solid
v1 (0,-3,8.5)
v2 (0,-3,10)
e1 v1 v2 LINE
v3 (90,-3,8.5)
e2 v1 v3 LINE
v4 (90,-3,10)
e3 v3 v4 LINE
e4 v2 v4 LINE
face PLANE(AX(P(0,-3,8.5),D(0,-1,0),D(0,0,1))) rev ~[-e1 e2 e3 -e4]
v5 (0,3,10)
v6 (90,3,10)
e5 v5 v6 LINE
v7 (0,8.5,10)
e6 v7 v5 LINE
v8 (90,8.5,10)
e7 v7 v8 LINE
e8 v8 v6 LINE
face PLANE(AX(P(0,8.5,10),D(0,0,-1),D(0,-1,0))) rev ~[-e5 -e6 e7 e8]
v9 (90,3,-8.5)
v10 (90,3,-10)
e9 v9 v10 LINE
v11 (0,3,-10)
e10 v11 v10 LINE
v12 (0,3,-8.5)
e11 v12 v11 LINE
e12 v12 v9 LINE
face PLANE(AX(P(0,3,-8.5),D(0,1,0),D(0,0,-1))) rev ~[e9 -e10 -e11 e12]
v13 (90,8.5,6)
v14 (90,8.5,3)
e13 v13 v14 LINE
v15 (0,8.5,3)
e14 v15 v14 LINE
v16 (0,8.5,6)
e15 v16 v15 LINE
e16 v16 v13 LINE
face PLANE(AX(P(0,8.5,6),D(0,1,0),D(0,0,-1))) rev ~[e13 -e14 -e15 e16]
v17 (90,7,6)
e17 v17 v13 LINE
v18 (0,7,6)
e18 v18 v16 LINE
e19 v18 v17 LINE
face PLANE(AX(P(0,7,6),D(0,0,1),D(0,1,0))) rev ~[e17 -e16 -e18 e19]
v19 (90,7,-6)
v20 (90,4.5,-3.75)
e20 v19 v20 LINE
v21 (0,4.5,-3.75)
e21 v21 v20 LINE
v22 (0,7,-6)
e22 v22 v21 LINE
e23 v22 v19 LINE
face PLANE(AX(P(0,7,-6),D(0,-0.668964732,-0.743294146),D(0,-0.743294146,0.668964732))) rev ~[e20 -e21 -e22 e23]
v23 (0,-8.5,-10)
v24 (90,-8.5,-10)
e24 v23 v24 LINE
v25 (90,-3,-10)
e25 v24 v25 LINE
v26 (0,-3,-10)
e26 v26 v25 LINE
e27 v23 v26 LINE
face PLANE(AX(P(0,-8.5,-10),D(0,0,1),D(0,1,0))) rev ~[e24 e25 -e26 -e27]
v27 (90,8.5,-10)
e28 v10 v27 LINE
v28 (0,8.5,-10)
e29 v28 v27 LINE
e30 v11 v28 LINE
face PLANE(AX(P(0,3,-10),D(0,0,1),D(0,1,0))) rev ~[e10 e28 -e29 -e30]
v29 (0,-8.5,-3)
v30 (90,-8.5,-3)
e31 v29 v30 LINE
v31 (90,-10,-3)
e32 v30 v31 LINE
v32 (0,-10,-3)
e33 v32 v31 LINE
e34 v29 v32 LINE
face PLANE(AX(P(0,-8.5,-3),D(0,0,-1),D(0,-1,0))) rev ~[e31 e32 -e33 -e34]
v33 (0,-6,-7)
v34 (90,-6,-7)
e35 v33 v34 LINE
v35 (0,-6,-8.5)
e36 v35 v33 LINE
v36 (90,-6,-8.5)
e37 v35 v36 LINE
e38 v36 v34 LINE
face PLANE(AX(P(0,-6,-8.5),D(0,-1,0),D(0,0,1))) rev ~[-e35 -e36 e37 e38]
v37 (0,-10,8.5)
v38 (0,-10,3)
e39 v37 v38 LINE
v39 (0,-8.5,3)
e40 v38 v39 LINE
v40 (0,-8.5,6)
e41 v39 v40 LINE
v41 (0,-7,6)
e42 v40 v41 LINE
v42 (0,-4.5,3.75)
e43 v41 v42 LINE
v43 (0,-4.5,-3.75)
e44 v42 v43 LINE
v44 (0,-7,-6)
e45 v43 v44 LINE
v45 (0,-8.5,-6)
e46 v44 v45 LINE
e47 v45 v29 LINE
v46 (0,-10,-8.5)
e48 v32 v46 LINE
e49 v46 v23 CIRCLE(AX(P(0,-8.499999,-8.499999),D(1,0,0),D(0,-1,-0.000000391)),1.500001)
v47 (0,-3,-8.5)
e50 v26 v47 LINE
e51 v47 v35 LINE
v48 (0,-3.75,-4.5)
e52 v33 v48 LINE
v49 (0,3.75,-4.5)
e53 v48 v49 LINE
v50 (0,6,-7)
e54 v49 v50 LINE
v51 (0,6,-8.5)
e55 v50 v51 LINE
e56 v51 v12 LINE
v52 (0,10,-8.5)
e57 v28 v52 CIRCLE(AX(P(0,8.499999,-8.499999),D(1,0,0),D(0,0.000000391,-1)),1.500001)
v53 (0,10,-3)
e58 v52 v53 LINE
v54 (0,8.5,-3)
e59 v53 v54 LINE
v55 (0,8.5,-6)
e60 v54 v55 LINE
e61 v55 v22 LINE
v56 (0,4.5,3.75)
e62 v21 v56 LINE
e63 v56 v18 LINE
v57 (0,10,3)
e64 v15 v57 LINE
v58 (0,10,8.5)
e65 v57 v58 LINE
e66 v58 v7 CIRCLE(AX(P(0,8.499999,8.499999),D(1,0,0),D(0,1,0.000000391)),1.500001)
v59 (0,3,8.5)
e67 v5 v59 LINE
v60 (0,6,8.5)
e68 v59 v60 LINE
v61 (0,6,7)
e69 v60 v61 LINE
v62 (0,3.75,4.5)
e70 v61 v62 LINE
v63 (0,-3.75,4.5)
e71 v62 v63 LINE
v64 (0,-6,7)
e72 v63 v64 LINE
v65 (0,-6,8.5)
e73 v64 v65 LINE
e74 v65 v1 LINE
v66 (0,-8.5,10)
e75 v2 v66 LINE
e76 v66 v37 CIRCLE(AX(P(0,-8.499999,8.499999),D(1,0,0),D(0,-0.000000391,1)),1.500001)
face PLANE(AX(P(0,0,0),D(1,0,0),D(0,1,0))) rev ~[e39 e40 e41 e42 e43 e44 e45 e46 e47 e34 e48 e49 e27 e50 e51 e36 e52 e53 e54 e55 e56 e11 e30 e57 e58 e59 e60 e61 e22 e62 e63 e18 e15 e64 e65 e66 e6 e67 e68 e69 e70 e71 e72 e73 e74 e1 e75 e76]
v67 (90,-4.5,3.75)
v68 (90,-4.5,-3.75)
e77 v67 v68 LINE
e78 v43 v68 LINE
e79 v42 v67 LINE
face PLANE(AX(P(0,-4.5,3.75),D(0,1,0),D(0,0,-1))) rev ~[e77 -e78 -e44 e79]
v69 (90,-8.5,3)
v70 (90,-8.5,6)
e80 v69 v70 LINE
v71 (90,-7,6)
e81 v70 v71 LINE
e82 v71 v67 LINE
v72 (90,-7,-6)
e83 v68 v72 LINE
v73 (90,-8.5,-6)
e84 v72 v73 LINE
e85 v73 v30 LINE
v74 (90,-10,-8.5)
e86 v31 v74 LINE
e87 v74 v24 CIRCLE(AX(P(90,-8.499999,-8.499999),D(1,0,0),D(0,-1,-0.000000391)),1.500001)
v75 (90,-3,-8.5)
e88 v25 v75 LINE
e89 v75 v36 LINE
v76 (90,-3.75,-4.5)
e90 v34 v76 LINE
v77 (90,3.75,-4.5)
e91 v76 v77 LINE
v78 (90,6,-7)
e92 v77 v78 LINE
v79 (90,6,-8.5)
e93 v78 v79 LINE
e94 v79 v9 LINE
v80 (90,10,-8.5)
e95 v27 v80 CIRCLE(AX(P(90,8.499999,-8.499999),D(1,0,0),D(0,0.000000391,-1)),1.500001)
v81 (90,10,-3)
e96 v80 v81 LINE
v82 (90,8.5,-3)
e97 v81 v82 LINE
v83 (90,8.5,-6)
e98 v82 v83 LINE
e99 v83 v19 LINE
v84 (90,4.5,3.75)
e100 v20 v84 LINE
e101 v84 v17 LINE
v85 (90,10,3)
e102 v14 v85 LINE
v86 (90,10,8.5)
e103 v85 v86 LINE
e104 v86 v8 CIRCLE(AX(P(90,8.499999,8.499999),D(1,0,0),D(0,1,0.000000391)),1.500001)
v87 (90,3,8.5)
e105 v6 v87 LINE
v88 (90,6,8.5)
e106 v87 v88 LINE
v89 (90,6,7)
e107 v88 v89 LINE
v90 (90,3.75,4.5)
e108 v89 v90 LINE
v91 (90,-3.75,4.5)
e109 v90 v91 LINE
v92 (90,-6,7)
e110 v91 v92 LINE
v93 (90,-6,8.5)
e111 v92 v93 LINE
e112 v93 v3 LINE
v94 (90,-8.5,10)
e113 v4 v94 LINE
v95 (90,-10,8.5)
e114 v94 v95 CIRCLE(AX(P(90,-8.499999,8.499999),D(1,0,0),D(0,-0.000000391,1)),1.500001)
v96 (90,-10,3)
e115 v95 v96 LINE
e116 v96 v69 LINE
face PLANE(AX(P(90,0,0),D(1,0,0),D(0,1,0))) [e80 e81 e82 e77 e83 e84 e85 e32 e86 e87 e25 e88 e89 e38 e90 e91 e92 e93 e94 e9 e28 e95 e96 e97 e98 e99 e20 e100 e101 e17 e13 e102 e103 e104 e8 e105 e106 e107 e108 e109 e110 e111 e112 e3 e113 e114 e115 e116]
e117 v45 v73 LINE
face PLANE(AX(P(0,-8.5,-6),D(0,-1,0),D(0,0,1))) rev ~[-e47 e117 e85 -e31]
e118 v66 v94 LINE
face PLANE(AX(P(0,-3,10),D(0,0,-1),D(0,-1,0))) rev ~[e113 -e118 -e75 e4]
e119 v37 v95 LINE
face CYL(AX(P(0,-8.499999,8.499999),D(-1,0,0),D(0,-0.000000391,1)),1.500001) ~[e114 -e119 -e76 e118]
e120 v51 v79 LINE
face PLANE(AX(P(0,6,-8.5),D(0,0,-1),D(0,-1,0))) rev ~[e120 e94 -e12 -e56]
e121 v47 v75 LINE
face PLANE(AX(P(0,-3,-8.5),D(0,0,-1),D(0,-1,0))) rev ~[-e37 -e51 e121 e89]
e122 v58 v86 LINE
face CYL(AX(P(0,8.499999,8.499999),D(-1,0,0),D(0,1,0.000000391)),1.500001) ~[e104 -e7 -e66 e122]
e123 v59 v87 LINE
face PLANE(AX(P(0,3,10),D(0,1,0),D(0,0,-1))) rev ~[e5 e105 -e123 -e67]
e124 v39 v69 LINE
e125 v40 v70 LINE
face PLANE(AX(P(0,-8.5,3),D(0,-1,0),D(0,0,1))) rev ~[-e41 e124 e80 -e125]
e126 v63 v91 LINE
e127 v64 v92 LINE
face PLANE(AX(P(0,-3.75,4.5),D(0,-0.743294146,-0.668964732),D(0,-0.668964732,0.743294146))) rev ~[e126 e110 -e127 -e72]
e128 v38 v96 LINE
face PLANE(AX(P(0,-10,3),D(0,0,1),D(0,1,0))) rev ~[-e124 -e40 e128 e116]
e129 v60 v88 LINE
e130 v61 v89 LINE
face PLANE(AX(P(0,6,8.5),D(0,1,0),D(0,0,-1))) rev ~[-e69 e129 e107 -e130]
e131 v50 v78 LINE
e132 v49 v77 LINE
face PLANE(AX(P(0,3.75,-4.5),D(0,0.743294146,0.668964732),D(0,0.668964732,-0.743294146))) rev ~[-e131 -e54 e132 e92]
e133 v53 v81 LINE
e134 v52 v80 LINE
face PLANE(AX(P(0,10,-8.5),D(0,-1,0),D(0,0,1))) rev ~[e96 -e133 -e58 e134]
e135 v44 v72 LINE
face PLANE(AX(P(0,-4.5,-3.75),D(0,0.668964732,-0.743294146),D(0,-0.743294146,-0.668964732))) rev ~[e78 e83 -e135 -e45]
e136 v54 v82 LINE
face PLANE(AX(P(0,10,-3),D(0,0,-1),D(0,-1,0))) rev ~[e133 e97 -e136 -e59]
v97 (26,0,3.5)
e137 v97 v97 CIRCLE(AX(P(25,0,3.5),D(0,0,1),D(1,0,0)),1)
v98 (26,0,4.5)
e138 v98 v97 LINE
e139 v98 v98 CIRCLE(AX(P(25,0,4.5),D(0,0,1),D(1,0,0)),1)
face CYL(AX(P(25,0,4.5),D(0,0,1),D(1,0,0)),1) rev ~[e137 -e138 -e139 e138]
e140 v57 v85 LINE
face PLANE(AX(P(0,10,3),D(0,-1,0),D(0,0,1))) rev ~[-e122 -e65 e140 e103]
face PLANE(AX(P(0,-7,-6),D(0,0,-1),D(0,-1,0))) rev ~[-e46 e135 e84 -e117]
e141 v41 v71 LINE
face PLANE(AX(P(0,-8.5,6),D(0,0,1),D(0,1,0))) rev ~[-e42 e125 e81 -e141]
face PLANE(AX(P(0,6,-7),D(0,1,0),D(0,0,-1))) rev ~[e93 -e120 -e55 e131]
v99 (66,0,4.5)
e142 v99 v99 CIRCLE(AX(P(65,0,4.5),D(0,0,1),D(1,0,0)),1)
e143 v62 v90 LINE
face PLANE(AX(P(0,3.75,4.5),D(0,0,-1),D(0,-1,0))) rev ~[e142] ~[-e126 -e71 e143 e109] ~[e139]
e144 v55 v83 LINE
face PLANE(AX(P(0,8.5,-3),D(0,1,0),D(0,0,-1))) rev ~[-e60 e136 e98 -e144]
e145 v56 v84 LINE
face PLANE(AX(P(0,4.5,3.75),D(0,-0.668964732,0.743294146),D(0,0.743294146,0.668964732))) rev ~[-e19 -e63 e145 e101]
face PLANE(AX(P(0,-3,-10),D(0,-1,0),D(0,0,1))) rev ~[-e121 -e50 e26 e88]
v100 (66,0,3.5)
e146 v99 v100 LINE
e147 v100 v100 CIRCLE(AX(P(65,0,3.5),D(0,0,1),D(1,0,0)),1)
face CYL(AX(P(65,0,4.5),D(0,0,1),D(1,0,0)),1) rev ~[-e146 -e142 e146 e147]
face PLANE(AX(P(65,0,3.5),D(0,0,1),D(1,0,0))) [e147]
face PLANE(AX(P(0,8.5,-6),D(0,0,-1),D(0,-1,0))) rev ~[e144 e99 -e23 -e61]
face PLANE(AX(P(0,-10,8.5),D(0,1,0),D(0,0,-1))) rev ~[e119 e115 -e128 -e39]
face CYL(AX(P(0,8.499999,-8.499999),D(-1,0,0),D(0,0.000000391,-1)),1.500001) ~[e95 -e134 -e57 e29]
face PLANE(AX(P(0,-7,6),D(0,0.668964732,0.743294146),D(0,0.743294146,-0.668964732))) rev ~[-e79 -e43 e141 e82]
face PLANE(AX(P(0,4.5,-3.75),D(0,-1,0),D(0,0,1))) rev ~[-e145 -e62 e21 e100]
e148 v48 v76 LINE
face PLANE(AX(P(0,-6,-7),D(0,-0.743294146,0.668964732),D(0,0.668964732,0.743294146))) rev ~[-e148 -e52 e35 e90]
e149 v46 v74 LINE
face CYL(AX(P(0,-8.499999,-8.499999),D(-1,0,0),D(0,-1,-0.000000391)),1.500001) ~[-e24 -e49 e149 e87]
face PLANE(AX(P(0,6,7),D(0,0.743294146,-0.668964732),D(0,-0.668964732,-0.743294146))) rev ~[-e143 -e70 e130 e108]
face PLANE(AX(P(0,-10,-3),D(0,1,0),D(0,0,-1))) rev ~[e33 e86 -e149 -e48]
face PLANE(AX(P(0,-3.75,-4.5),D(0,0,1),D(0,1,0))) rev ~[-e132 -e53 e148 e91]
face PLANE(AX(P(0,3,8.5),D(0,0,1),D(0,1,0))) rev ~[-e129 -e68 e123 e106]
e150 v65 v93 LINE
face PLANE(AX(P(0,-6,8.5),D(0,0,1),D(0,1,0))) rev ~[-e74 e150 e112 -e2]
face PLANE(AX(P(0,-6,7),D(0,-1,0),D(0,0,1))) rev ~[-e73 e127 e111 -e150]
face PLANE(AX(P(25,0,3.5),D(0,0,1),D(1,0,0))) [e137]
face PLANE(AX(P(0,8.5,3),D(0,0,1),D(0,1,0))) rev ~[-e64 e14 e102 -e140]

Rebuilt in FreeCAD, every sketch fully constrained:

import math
import FreeCAD as App
import Part
import Sketcher
Q = App.Units.Quantity

doc = App.newDocument("Part")
params = doc.addObject("Spreadsheet::Sheet", "Params")
for row, (alias, value) in enumerate([
    ("sketch1_radius", "1.500001 mm"),
    ("sketch1_width", "3 mm"),
    ("sketch1_width2", "5.5 mm"),
    ("sketch1_width3", "7.5 mm"),
    ("pad1_length", "90 mm"),
    ("sketch2_diameter", "2 mm"),
    ("pocket1_length", "1 mm"),
], start=1):
    params.set(f"A{row}", alias)
    params.set(f"B{row}", "=" + value)
    params.setAlias(f"B{row}", alias)

body = doc.addObject("PartDesign::Body", "Body")

# Sketch on YZ plane
sketch1 = doc.addObject("Sketcher::SketchObject", "Sketch")
body.addObject(sketch1)
sketch1.AttachmentSupport = (doc.YZ_Plane, [""])
sketch1.MapMode = "FlatFace"
sketch1.addGeometry([
    Part.ArcOfCircle(Part.Circle(App.Vector(8.499999, 8.499999, 0), App.Vector(0, 0, 1), 1.500001), math.radians(0.000022), math.radians(89.999978)),  # 0
    Part.LineSegment(App.Vector(8.5, 10, 0), App.Vector(3, 10, 0)),  # 1
    Part.LineSegment(App.Vector(3, 10, 0), App.Vector(3, 8.5, 0)),  # 2
    Part.LineSegment(App.Vector(3, 8.5, 0), App.Vector(6, 8.5, 0)),  # 3
    Part.LineSegment(App.Vector(6, 8.5, 0), App.Vector(6, 7, 0)),  # 4
    Part.LineSegment(App.Vector(6, 7, 0), App.Vector(3.75, 4.5, 0)),  # 5
    Part.LineSegment(App.Vector(3.75, 4.5, 0), App.Vector(-3.75, 4.5, 0)),  # 6
    Part.LineSegment(App.Vector(-3.75, 4.5, 0), App.Vector(-6, 7, 0)),  # 7
    Part.LineSegment(App.Vector(-6, 7, 0), App.Vector(-6, 8.5, 0)),  # 8
    Part.LineSegment(App.Vector(-6, 8.5, 0), App.Vector(-3, 8.5, 0)),  # 9
    Part.LineSegment(App.Vector(-3, 8.5, 0), App.Vector(-3, 10, 0)),  # 10
    Part.LineSegment(App.Vector(-3, 10, 0), App.Vector(-8.5, 10, 0)),  # 11
    Part.ArcOfCircle(Part.Circle(App.Vector(-8.499999, 8.499999, 0), App.Vector(0, 0, 1), 1.500001), math.radians(90.000022), math.radians(179.999978)),  # 12
    Part.LineSegment(App.Vector(-10, 8.5, 0), App.Vector(-10, 3, 0)),  # 13
    Part.LineSegment(App.Vector(-10, 3, 0), App.Vector(-8.5, 3, 0)),  # 14
    Part.LineSegment(App.Vector(-8.5, 3, 0), App.Vector(-8.5, 6, 0)),  # 15
    Part.LineSegment(App.Vector(-8.5, 6, 0), App.Vector(-7, 6, 0)),  # 16
    Part.LineSegment(App.Vector(-7, 6, 0), App.Vector(-4.5, 3.75, 0)),  # 17
    Part.LineSegment(App.Vector(-4.5, 3.75, 0), App.Vector(-4.5, -3.75, 0)),  # 18
    Part.LineSegment(App.Vector(-4.5, -3.75, 0), App.Vector(-7, -6, 0)),  # 19
    Part.LineSegment(App.Vector(-7, -6, 0), App.Vector(-8.5, -6, 0)),  # 20
    Part.LineSegment(App.Vector(-8.5, -6, 0), App.Vector(-8.5, -3, 0)),  # 21
    Part.LineSegment(App.Vector(-8.5, -3, 0), App.Vector(-10, -3, 0)),  # 22
    Part.LineSegment(App.Vector(-10, -3, 0), App.Vector(-10, -8.5, 0)),  # 23
    Part.ArcOfCircle(Part.Circle(App.Vector(-8.499999, -8.499999, 0), App.Vector(0, 0, 1), 1.500001), math.radians(-179.999978), math.radians(-90.000022)),  # 24
    Part.LineSegment(App.Vector(-8.5, -10, 0), App.Vector(-3, -10, 0)),  # 25
    Part.LineSegment(App.Vector(-3, -10, 0), App.Vector(-3, -8.5, 0)),  # 26
    Part.LineSegment(App.Vector(-3, -8.5, 0), App.Vector(-6, -8.5, 0)),  # 27
    Part.LineSegment(App.Vector(-6, -8.5, 0), App.Vector(-6, -7, 0)),  # 28
    Part.LineSegment(App.Vector(-6, -7, 0), App.Vector(-3.75, -4.5, 0)),  # 29
    Part.LineSegment(App.Vector(-3.75, -4.5, 0), App.Vector(3.75, -4.5, 0)),  # 30
    Part.LineSegment(App.Vector(3.75, -4.5, 0), App.Vector(6, -7, 0)),  # 31
    Part.LineSegment(App.Vector(6, -7, 0), App.Vector(6, -8.5, 0)),  # 32
    Part.LineSegment(App.Vector(6, -8.5, 0), App.Vector(3, -8.5, 0)),  # 33
    Part.LineSegment(App.Vector(3, -8.5, 0), App.Vector(3, -10, 0)),  # 34
    Part.LineSegment(App.Vector(3, -10, 0), App.Vector(8.5, -10, 0)),  # 35
    Part.ArcOfCircle(Part.Circle(App.Vector(8.499999, -8.499999, 0), App.Vector(0, 0, 1), 1.500001), math.radians(-89.999978), math.radians(-0.000022)),  # 36
    Part.LineSegment(App.Vector(10, -8.5, 0), App.Vector(10, -3, 0)),  # 37
    Part.LineSegment(App.Vector(10, -3, 0), App.Vector(8.5, -3, 0)),  # 38
    Part.LineSegment(App.Vector(8.5, -3, 0), App.Vector(8.5, -6, 0)),  # 39
    Part.LineSegment(App.Vector(8.5, -6, 0), App.Vector(7, -6, 0)),  # 40
    Part.LineSegment(App.Vector(7, -6, 0), App.Vector(4.5, -3.75, 0)),  # 41
    Part.LineSegment(App.Vector(4.5, -3.75, 0), App.Vector(4.5, 3.75, 0)),  # 42
    Part.LineSegment(App.Vector(4.5, 3.75, 0), App.Vector(7, 6, 0)),  # 43
    Part.LineSegment(App.Vector(7, 6, 0), App.Vector(8.5, 6, 0)),  # 44
    Part.LineSegment(App.Vector(8.5, 6, 0), App.Vector(8.5, 3, 0)),  # 45
    Part.LineSegment(App.Vector(8.5, 3, 0), App.Vector(10, 3, 0)),  # 46
    Part.LineSegment(App.Vector(10, 3, 0), App.Vector(10, 8.5, 0)),  # 47
], False)
sketch1.addConstraint([
    Sketcher.Constraint("Tangent", 0, 2, 1, 1),
    Sketcher.Constraint("Coincident", 1, 2, 2, 1),
    Sketcher.Constraint("Coincident", 2, 2, 3, 1),
    Sketcher.Constraint("Coincident", 3, 2, 4, 1),
    Sketcher.Constraint("Coincident", 4, 2, 5, 1),
    Sketcher.Constraint("Coincident", 5, 2, 6, 1),
    Sketcher.Constraint("Coincident", 6, 2, 7, 1),
    Sketcher.Constraint("Coincident", 7, 2, 8, 1),
    Sketcher.Constraint("Coincident", 8, 2, 9, 1),
    Sketcher.Constraint("Coincident", 9, 2, 10, 1),
    Sketcher.Constraint("Coincident", 10, 2, 11, 1),
    Sketcher.Constraint("Tangent", 11, 2, 12, 1),
    Sketcher.Constraint("Tangent", 12, 2, 13, 1),
    Sketcher.Constraint("Coincident", 13, 2, 14, 1),
    Sketcher.Constraint("Coincident", 14, 2, 15, 1),
    Sketcher.Constraint("Coincident", 15, 2, 16, 1),
    Sketcher.Constraint("Coincident", 16, 2, 17, 1),
    Sketcher.Constraint("Coincident", 17, 2, 18, 1),
    Sketcher.Constraint("Coincident", 18, 2, 19, 1),
    Sketcher.Constraint("Coincident", 19, 2, 20, 1),
    Sketcher.Constraint("Coincident", 20, 2, 21, 1),
    Sketcher.Constraint("Coincident", 21, 2, 22, 1),
    Sketcher.Constraint("Coincident", 22, 2, 23, 1),
    Sketcher.Constraint("Tangent", 23, 2, 24, 1),
    Sketcher.Constraint("Tangent", 24, 2, 25, 1),
    Sketcher.Constraint("Coincident", 25, 2, 26, 1),
    Sketcher.Constraint("Coincident", 26, 2, 27, 1),
    Sketcher.Constraint("Coincident", 27, 2, 28, 1),
    Sketcher.Constraint("Coincident", 28, 2, 29, 1),
    Sketcher.Constraint("Coincident", 29, 2, 30, 1),
    Sketcher.Constraint("Coincident", 30, 2, 31, 1),
    Sketcher.Constraint("Coincident", 31, 2, 32, 1),
    Sketcher.Constraint("Coincident", 32, 2, 33, 1),
    Sketcher.Constraint("Coincident", 33, 2, 34, 1),
    Sketcher.Constraint("Coincident", 34, 2, 35, 1),
    Sketcher.Constraint("Tangent", 35, 2, 36, 1),
    Sketcher.Constraint("Tangent", 36, 2, 37, 1),
    Sketcher.Constraint("Coincident", 37, 2, 38, 1),
    Sketcher.Constraint("Coincident", 38, 2, 39, 1),
    Sketcher.Constraint("Coincident", 39, 2, 40, 1),
    Sketcher.Constraint("Coincident", 40, 2, 41, 1),
    Sketcher.Constraint("Coincident", 41, 2, 42, 1),
    Sketcher.Constraint("Coincident", 42, 2, 43, 1),
    Sketcher.Constraint("Coincident", 43, 2, 44, 1),
    Sketcher.Constraint("Coincident", 44, 2, 45, 1),
    Sketcher.Constraint("Coincident", 45, 2, 46, 1),
    Sketcher.Constraint("Coincident", 46, 2, 47, 1),
    Sketcher.Constraint("Tangent", 47, 2, 0, 1),
    Sketcher.Constraint("Horizontal", 1),
    Sketcher.Constraint("Vertical", 2),
    Sketcher.Constraint("Horizontal", 3),
    Sketcher.Constraint("Vertical", 4),
    Sketcher.Constraint("Horizontal", 6),
    Sketcher.Constraint("Vertical", 8),
    Sketcher.Constraint("Horizontal", 9),
    Sketcher.Constraint("Vertical", 10),
    Sketcher.Constraint("Horizontal", 11),
    Sketcher.Constraint("Vertical", 13),
    Sketcher.Constraint("Horizontal", 14),
    Sketcher.Constraint("Vertical", 15),
    Sketcher.Constraint("Horizontal", 16),
    Sketcher.Constraint("Vertical", 18),
    Sketcher.Constraint("Horizontal", 20),
    Sketcher.Constraint("Vertical", 21),
    Sketcher.Constraint("Horizontal", 22),
    Sketcher.Constraint("Vertical", 23),
    Sketcher.Constraint("Horizontal", 25),
    Sketcher.Constraint("Vertical", 26),
    Sketcher.Constraint("Horizontal", 27),
    Sketcher.Constraint("Vertical", 28),
    Sketcher.Constraint("Horizontal", 30),
    Sketcher.Constraint("Vertical", 32),
    Sketcher.Constraint("Horizontal", 33),
    Sketcher.Constraint("Vertical", 34),
    Sketcher.Constraint("Horizontal", 35),
    Sketcher.Constraint("Vertical", 37),
    Sketcher.Constraint("Horizontal", 38),
    Sketcher.Constraint("Vertical", 39),
    Sketcher.Constraint("Horizontal", 40),
    Sketcher.Constraint("Vertical", 42),
    Sketcher.Constraint("Horizontal", 44),
    Sketcher.Constraint("Vertical", 45),
    Sketcher.Constraint("Horizontal", 46),
    Sketcher.Constraint("Vertical", 47),
    Sketcher.Constraint("Equal", 0, 12),
    Sketcher.Constraint("Equal", 12, 24),
    Sketcher.Constraint("Equal", 24, 36),
    Sketcher.Constraint("Symmetric", 0, 3, 24, 3, -1, 1),
    Sketcher.Constraint("Symmetric", 12, 3, 36, 3, -1, 1),
    Sketcher.Constraint("Symmetric", 2, 2, 26, 2, -1, 1),
    Sketcher.Constraint("Symmetric", 4, 2, 28, 2, -1, 1),
    Sketcher.Constraint("Symmetric", 5, 2, 29, 2, -1, 1),
    Sketcher.Constraint("Symmetric", 7, 2, 31, 2, -1, 1),
    Sketcher.Constraint("Symmetric", 9, 2, 33, 2, -1, 1),
    Sketcher.Constraint("Symmetric", 14, 2, 38, 2, -1, 1),
    Sketcher.Constraint("Symmetric", 16, 2, 40, 2, -1, 1),
    Sketcher.Constraint("Symmetric", 17, 2, 41, 2, -1, 1),
    Sketcher.Constraint("Symmetric", 19, 2, 43, 2, -1, 1),
    Sketcher.Constraint("Symmetric", 21, 2, 45, 2, -1, 1),
    Sketcher.Constraint("Symmetric", 0, 3, 12, 3, -2),
    Sketcher.Constraint("Symmetric", 4, 2, 7, 2, -2),
    Sketcher.Constraint("Symmetric", 2, 2, 9, 2, -2),
    Sketcher.Constraint("Symmetric", 21, 2, 38, 2, -2),
    Sketcher.Constraint("Symmetric", 19, 2, 40, 2, -2),
    Sketcher.Constraint("Perpendicular", 5, 17),
    Sketcher.Constraint("Perpendicular", 7, 19),
    Sketcher.Constraint("Perpendicular", 19, 31),
    Sketcher.Constraint("Perpendicular", 31, 43),
    Sketcher.Constraint("Horizontal", 12, 3, 2, 2),
    Sketcher.Constraint("Horizontal", 18, 2, 41, 2),
    Sketcher.Constraint("Vertical", 11, 2, 14, 2),
    Sketcher.Constraint("Equal", 14, 16),
    Sketcher.Constraint("Equal", 2, 4),
    Sketcher.Constraint("Equal", 35, 13),
    Sketcher.Constraint("Equal", 33, 15),
    Sketcher.Constraint("Equal", 30, 18),
    Sketcher.Constraint("Equal", 7, 17),
    Sketcher.Constraint("Radius", 0, Q("1.500001 mm")),
    Sketcher.Constraint("DistanceX", 3, 1, 3, 2, Q("3 mm")),
    Sketcher.Constraint("DistanceX", 1, 2, 1, 1, Q("5.5 mm")),
    Sketcher.Constraint("DistanceX", 6, 2, 6, 1, Q("7.5 mm")),
    Sketcher.Constraint("DistanceY", -1, 1, 0, 2, Q("10 mm")),
    Sketcher.Constraint("DistanceY", 5, 2, 2, 2, Q("4 mm")),
])
sketch1.setExpression("Constraints[117]", "Params.sketch1_radius")
sketch1.setExpression("Constraints[118]", "Params.sketch1_width")
sketch1.setExpression("Constraints[119]", "Params.sketch1_width2")
sketch1.setExpression("Constraints[120]", "Params.sketch1_width3")
pad1 = doc.addObject("PartDesign::Pad", "Pad")
body.addObject(pad1)
pad1.Profile = sketch1
pad1.setExpression("Length", "Params.pad1_length")

# Sketch on XY plane
sketch2 = doc.addObject("Sketcher::SketchObject", "Sketch001")
body.addObject(sketch2)
sketch2.AttachmentSupport = (doc.XY_Plane, [""])
sketch2.MapMode = "FlatFace"
sketch2.AttachmentOffset = App.Placement(App.Vector(0, 0, 4.5), App.Rotation())
sketch2.addGeometry([
    Part.Circle(App.Vector(65, 0, 0), App.Vector(0, 0, 1), 1),
    Part.Circle(App.Vector(25, 0, 0), App.Vector(0, 0, 1), 1),
], False)
sketch2.addConstraint([
    Sketcher.Constraint("Equal", 0, 1),
    Sketcher.Constraint("PointOnObject", 0, 3, -1),
    Sketcher.Constraint("PointOnObject", 1, 3, -1),
    Sketcher.Constraint("Diameter", 0, Q("2 mm")),
    Sketcher.Constraint("DistanceX", -1, 1, 0, 3, Q("65 mm")),
    Sketcher.Constraint("DistanceX", -1, 1, 1, 3, Q("25 mm")),
])
sketch2.setExpression("Constraints[3]", "Params.sketch2_diameter")
pocket1 = doc.addObject("PartDesign::Pocket", "Pocket")
body.addObject(pocket1)
pocket1.Profile = sketch2
pocket1.setExpression("Length", "Params.pocket1_length")

doc.recompute()
